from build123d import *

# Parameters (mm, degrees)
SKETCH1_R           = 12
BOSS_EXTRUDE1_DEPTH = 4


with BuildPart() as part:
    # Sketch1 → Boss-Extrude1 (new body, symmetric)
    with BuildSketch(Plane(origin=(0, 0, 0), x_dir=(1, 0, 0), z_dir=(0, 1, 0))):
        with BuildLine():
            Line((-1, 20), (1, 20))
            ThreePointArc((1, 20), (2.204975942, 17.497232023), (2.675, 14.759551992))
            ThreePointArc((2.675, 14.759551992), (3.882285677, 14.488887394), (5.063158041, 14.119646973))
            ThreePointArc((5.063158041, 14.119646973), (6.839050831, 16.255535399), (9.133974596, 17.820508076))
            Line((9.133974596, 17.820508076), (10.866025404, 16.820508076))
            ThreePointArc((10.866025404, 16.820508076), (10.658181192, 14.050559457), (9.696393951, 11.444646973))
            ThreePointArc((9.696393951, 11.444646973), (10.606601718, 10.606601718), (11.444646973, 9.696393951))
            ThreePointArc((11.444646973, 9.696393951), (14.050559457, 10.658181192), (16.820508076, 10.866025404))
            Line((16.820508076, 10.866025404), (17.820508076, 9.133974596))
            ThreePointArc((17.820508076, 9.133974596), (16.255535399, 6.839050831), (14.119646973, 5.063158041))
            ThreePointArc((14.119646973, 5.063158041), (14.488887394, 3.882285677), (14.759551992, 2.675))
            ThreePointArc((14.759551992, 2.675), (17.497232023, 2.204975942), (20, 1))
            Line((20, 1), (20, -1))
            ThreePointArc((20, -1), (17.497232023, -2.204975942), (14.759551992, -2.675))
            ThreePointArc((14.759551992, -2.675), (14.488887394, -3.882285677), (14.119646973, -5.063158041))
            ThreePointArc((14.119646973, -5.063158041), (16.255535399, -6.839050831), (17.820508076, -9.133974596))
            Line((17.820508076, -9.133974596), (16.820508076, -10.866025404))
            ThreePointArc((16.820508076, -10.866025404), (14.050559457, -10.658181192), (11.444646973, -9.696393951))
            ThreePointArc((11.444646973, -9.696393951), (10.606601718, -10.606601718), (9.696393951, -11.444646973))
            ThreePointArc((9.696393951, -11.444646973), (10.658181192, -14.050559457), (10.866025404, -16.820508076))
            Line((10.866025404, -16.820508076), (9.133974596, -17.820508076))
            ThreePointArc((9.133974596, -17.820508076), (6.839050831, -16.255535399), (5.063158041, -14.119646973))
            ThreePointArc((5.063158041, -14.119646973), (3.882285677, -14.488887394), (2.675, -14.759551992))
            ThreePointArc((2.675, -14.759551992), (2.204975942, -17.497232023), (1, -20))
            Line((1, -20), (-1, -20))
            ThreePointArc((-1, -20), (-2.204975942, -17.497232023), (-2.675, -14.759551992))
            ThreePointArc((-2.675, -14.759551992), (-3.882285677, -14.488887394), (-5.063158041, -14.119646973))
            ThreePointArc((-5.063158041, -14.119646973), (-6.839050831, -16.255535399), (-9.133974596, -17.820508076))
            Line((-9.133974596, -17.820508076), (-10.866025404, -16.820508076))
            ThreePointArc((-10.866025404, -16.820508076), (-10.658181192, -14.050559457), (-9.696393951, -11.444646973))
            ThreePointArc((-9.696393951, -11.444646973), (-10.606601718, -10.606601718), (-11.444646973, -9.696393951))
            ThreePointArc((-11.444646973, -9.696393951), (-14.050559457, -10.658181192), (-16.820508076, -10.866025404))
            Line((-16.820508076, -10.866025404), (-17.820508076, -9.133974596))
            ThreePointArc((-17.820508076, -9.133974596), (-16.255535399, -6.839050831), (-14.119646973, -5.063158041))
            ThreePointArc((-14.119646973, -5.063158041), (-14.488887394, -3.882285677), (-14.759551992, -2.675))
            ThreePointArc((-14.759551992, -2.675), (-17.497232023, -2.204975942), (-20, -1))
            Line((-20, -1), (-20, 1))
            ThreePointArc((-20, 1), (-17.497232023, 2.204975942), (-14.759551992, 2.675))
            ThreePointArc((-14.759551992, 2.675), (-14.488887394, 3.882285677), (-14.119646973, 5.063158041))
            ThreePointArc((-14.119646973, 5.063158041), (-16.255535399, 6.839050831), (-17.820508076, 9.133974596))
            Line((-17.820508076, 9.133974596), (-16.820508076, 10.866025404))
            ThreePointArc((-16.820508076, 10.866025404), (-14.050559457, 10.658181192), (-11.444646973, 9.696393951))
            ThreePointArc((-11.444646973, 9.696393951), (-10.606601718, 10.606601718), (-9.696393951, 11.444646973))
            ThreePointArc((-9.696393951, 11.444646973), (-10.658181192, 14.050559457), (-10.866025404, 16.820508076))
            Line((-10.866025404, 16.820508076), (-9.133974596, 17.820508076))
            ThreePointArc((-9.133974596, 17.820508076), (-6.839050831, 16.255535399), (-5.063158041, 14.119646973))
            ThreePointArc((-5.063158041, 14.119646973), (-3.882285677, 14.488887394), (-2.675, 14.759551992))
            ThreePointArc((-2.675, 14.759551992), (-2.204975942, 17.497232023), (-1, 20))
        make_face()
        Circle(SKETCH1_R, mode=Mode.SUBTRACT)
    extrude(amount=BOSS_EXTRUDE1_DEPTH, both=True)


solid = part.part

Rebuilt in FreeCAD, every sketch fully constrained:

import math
import FreeCAD as App
import Part
import Sketcher
Q = App.Units.Quantity

doc = App.newDocument("Part")
body = doc.addObject("PartDesign::Body", "Body")

# Sketch on XZ plane
sketch1 = body.newObject("Sketcher::SketchObject", "Sketch")
sketch1.AttachmentSupport = (doc.getObject("XZ_Plane"), [""])
sketch1.MapMode = "FlatFace"
sketch1.addGeometry([
    Part.LineSegment(App.Vector(1, -20, 0), App.Vector(-1, -20, 0)),  # 0
    Part.ArcOfCircle(Part.Circle(App.Vector(7.32029, -14.452679, 0), App.Vector(0, 0, 1), 10), math.radians(-178.241472), math.radians(-146.307737)),  # 1
    Part.ArcOfCircle(Part.Circle(App.Vector(0, 0, 0), App.Vector(0, 0, 1), 15), math.radians(-109.727304), math.radians(-100.272696)),  # 2
    Part.ArcOfCircle(Part.Circle(App.Vector(-13.565897, -8.856242, 0), App.Vector(0, 0, 1), 10), math.radians(-63.692263), math.radians(-31.758528)),  # 3
    Part.LineSegment(App.Vector(-9.133975, -17.820508, 0), App.Vector(-10.866025, -16.820508, 0)),  # 4
    Part.ArcOfCircle(Part.Circle(App.Vector(-0.886782, -16.176532, 0), App.Vector(0, 0, 1), 10), math.radians(151.758528), math.radians(183.692263)),  # 5
    Part.ArcOfCircle(Part.Circle(App.Vector(0, 0, 0), App.Vector(0, 0, 1), 15), math.radians(-139.727304), math.radians(-130.272696)),  # 6
    Part.ArcOfCircle(Part.Circle(App.Vector(-16.176532, -0.886782, 0), App.Vector(0, 0, 1), 10), math.radians(-93.692263), math.radians(-61.758528)),  # 7
    Part.LineSegment(App.Vector(-16.820508, -10.866025, 0), App.Vector(-17.820508, -9.133975, 0)),  # 8
    Part.ArcOfCircle(Part.Circle(App.Vector(-8.856242, -13.565897, 0), App.Vector(0, 0, 1), 10), math.radians(121.758528), math.radians(153.692263)),  # 9
    Part.ArcOfCircle(Part.Circle(App.Vector(0, 0, 0), App.Vector(0, 0, 1), 15), math.radians(-169.727304), math.radians(-160.272696)),  # 10
    Part.ArcOfCircle(Part.Circle(App.Vector(-14.452679, 7.32029, 0), App.Vector(0, 0, 1), 10), math.radians(-123.692263), math.radians(-91.758528)),  # 11
    Part.LineSegment(App.Vector(-20, -1, 0), App.Vector(-20, 1, 0)),  # 12
    Part.ArcOfCircle(Part.Circle(App.Vector(-14.452679, -7.32029, 0), App.Vector(0, 0, 1), 10), math.radians(91.758528), math.radians(123.692263)),  # 13
    Part.ArcOfCircle(Part.Circle(App.Vector(0, 0, 0), App.Vector(0, 0, 1), 15), math.radians(160.272696), math.radians(169.727304)),  # 14
    Part.ArcOfCircle(Part.Circle(App.Vector(-8.856242, 13.565897, 0), App.Vector(0, 0, 1), 10), math.radians(-153.692263), math.radians(-121.758528)),  # 15
    Part.LineSegment(App.Vector(-17.820508, 9.133975, 0), App.Vector(-16.820508, 10.866025, 0)),  # 16
    Part.ArcOfCircle(Part.Circle(App.Vector(-16.176532, 0.886782, 0), App.Vector(0, 0, 1), 10), math.radians(61.758528), math.radians(93.692263)),  # 17
    Part.ArcOfCircle(Part.Circle(App.Vector(0, 0, 0), App.Vector(0, 0, 1), 15), math.radians(130.272696), math.radians(139.727304)),  # 18
    Part.ArcOfCircle(Part.Circle(App.Vector(-0.886782, 16.176532, 0), App.Vector(0, 0, 1), 10), math.radians(176.307737), math.radians(208.241472)),  # 19
    Part.LineSegment(App.Vector(-10.866025, 16.820508, 0), App.Vector(-9.133975, 17.820508, 0)),  # 20
    Part.ArcOfCircle(Part.Circle(App.Vector(-13.565897, 8.856242, 0), App.Vector(0, 0, 1), 10), math.radians(31.758528), math.radians(63.692263)),  # 21
    Part.ArcOfCircle(Part.Circle(App.Vector(0, 0, 0), App.Vector(0, 0, 1), 15), math.radians(100.272696), math.radians(109.727304)),  # 22
    Part.ArcOfCircle(Part.Circle(App.Vector(7.32029, 14.452679, 0), App.Vector(0, 0, 1), 10), math.radians(146.307737), math.radians(178.241472)),  # 23
    Part.LineSegment(App.Vector(-1, 20, 0), App.Vector(1, 20, 0)),  # 24
    Part.ArcOfCircle(Part.Circle(App.Vector(-7.32029, 14.452679, 0), App.Vector(0, 0, 1), 10), math.radians(1.758528), math.radians(33.692263)),  # 25
    Part.ArcOfCircle(Part.Circle(App.Vector(0, 0, 0), App.Vector(0, 0, 1), 15), math.radians(70.272696), math.radians(79.727304)),  # 26
    Part.ArcOfCircle(Part.Circle(App.Vector(13.565897, 8.856242, 0), App.Vector(0, 0, 1), 10), math.radians(116.307737), math.radians(148.241472)),  # 27
    Part.LineSegment(App.Vector(9.133975, 17.820508, 0), App.Vector(10.866025, 16.820508, 0)),  # 28
    Part.ArcOfCircle(Part.Circle(App.Vector(0.886782, 16.176532, 0), App.Vector(0, 0, 1), 10), math.radians(-28.241472), math.radians(3.692263)),  # 29
    Part.ArcOfCircle(Part.Circle(App.Vector(0, 0, 0), App.Vector(0, 0, 1), 15), math.radians(40.272696), math.radians(49.727304)),  # 30
    Part.ArcOfCircle(Part.Circle(App.Vector(16.176532, 0.886782, 0), App.Vector(0, 0, 1), 10), math.radians(86.307737), math.radians(118.241472)),  # 31
    Part.LineSegment(App.Vector(16.820508, 10.866025, 0), App.Vector(17.820508, 9.133975, 0)),  # 32
    Part.ArcOfCircle(Part.Circle(App.Vector(8.856242, 13.565897, 0), App.Vector(0, 0, 1), 10), math.radians(-58.241472), math.radians(-26.307737)),  # 33
    Part.ArcOfCircle(Part.Circle(App.Vector(0, 0, 0), App.Vector(0, 0, 1), 15), math.radians(10.272696), math.radians(19.727304)),  # 34
    Part.ArcOfCircle(Part.Circle(App.Vector(14.452679, -7.32029, 0), App.Vector(0, 0, 1), 10), math.radians(56.307737), math.radians(88.241472)),  # 35
    Part.LineSegment(App.Vector(20, 1, 0), App.Vector(20, -1, 0)),  # 36
    Part.ArcOfCircle(Part.Circle(App.Vector(14.452679, 7.32029, 0), App.Vector(0, 0, 1), 10), math.radians(-88.241472), math.radians(-56.307737)),  # 37
    Part.ArcOfCircle(Part.Circle(App.Vector(0, 0, 0), App.Vector(0, 0, 1), 15), math.radians(-19.727304), math.radians(-10.272696)),  # 38
    Part.ArcOfCircle(Part.Circle(App.Vector(8.856242, -13.565897, 0), App.Vector(0, 0, 1), 10), math.radians(26.307737), math.radians(58.241472)),  # 39
    Part.LineSegment(App.Vector(17.820508, -9.133975, 0), App.Vector(16.820508, -10.866025, 0)),  # 40
    Part.ArcOfCircle(Part.Circle(App.Vector(16.176532, -0.886782, 0), App.Vector(0, 0, 1), 10), math.radians(-118.241472), math.radians(-86.307737)),  # 41
    Part.ArcOfCircle(Part.Circle(App.Vector(0, 0, 0), App.Vector(0, 0, 1), 15), math.radians(-49.727304), math.radians(-40.272696)),  # 42
    Part.ArcOfCircle(Part.Circle(App.Vector(0.886782, -16.176532, 0), App.Vector(0, 0, 1), 10), math.radians(-3.692263), math.radians(28.241472)),  # 43
    Part.LineSegment(App.Vector(10.866025, -16.820508, 0), App.Vector(9.133975, -17.820508, 0)),  # 44
    Part.ArcOfCircle(Part.Circle(App.Vector(13.565897, -8.856242, 0), App.Vector(0, 0, 1), 10), math.radians(-148.241472), math.radians(-116.307737)),  # 45
    Part.ArcOfCircle(Part.Circle(App.Vector(0, 0, 0), App.Vector(0, 0, 1), 15), math.radians(-79.727304), math.radians(-70.272696)),  # 46
    Part.ArcOfCircle(Part.Circle(App.Vector(-7.32029, -14.452679, 0), App.Vector(0, 0, 1), 10), math.radians(-33.692263), math.radians(-1.758528)),  # 47
    Part.Circle(App.Vector(0, 0, 0), App.Vector(0, 0, 1), 12),  # 48
], False)
sketch1.addConstraint([
    Sketcher.Constraint("Coincident", 0, 2, 1, 2),
    Sketcher.Constraint("Coincident", 1, 1, 2, 2),
    Sketcher.Constraint("Coincident", 2, 1, 3, 2),
    Sketcher.Constraint("Coincident", 3, 1, 4, 1),
    Sketcher.Constraint("Coincident", 4, 2, 5, 2),
    Sketcher.Constraint("Coincident", 5, 1, 6, 2),
    Sketcher.Constraint("Coincident", 6, 1, 7, 2),
    Sketcher.Constraint("Coincident", 7, 1, 8, 1),
    Sketcher.Constraint("Coincident", 8, 2, 9, 2),
    Sketcher.Constraint("Coincident", 9, 1, 10, 2),
    Sketcher.Constraint("Coincident", 10, 1, 11, 2),
    Sketcher.Constraint("Coincident", 11, 1, 12, 1),
    Sketcher.Constraint("Coincident", 12, 2, 13, 2),
    Sketcher.Constraint("Coincident", 13, 1, 14, 2),
    Sketcher.Constraint("Coincident", 14, 1, 15, 2),
    Sketcher.Constraint("Coincident", 15, 1, 16, 1),
    Sketcher.Constraint("Coincident", 16, 2, 17, 2),
    Sketcher.Constraint("Coincident", 17, 1, 18, 2),
    Sketcher.Constraint("Coincident", 18, 1, 19, 2),
    Sketcher.Constraint("Coincident", 19, 1, 20, 1),
    Sketcher.Constraint("Coincident", 20, 2, 21, 2),
    Sketcher.Constraint("Coincident", 21, 1, 22, 2),
    Sketcher.Constraint("Coincident", 22, 1, 23, 2),
    Sketcher.Constraint("Coincident", 23, 1, 24, 1),
    Sketcher.Constraint("Coincident", 24, 2, 25, 2),
    Sketcher.Constraint("Coincident", 25, 1, 26, 2),
    Sketcher.Constraint("Coincident", 26, 1, 27, 2),
    Sketcher.Constraint("Coincident", 27, 1, 28, 1),
    Sketcher.Constraint("Coincident", 28, 2, 29, 2),
    Sketcher.Constraint("Coincident", 29, 1, 30, 2),
    Sketcher.Constraint("Coincident", 30, 1, 31, 2),
    Sketcher.Constraint("Coincident", 31, 1, 32, 1),
    Sketcher.Constraint("Coincident", 32, 2, 33, 2),
    Sketcher.Constraint("Coincident", 33, 1, 34, 2),
    Sketcher.Constraint("Coincident", 34, 1, 35, 2),
    Sketcher.Constraint("Coincident", 35, 1, 36, 1),
    Sketcher.Constraint("Coincident", 36, 2, 37, 2),
    Sketcher.Constraint("Coincident", 37, 1, 38, 2),
    Sketcher.Constraint("Coincident", 38, 1, 39, 2),
    Sketcher.Constraint("Coincident", 39, 1, 40, 1),
    Sketcher.Constraint("Coincident", 40, 2, 41, 2),
    Sketcher.Constraint("Coincident", 41, 1, 42, 2),
    Sketcher.Constraint("Coincident", 42, 1, 43, 2),
    Sketcher.Constraint("Coincident", 43, 1, 44, 1),
    Sketcher.Constraint("Coincident", 44, 2, 45, 2),
    Sketcher.Constraint("Coincident", 45, 1, 46, 2),
    Sketcher.Constraint("Coincident", 46, 1, 47, 2),
    Sketcher.Constraint("Coincident", 47, 1, 0, 1),
    Sketcher.Constraint("Horizontal", 0),
    Sketcher.Constraint("Vertical", 12),
    Sketcher.Constraint("Horizontal", 24),
    Sketcher.Constraint("Vertical", 36),
    Sketcher.Constraint("Coincident", 2, 3, -1, 1),
    Sketcher.Constraint("Coincident", 6, 3, -1, 1),
    Sketcher.Constraint("Coincident", 10, 3, -1, 1),
    Sketcher.Constraint("Coincident", 14, 3, -1, 1),
    Sketcher.Constraint("Coincident", 18, 3, -1, 1),
    Sketcher.Constraint("Coincident", 22, 3, -1, 1),
    Sketcher.Constraint("Coincident", 26, 3, -1, 1),
    Sketcher.Constraint("Coincident", 30, 3, -1, 1),
    Sketcher.Constraint("Coincident", 34, 3, -1, 1),
    Sketcher.Constraint("Coincident", 38, 3, -1, 1),
    Sketcher.Constraint("Coincident", 42, 3, -1, 1),
    Sketcher.Constraint("Coincident", 46, 3, -1, 1),
    Sketcher.Constraint("Coincident", 48, 3, -1, 1),
    Sketcher.Constraint("Equal", 1, 3),
    Sketcher.Constraint("Equal", 3, 5),
    Sketcher.Constraint("Equal", 2, 6),
    Sketcher.Constraint("Equal", 5, 7),
    Sketcher.Constraint("Equal", 7, 9),
    Sketcher.Constraint("Equal", 6, 10),
    Sketcher.Constraint("Equal", 9, 11),
    Sketcher.Constraint("Equal", 11, 13),
    Sketcher.Constraint("Equal", 10, 14),
    Sketcher.Constraint("Equal", 13, 15),
    Sketcher.Constraint("Equal", 15, 17),
    Sketcher.Constraint("Equal", 14, 18),
    Sketcher.Constraint("Equal", 17, 19),
    Sketcher.Constraint("Equal", 19, 21),
    Sketcher.Constraint("Equal", 18, 22),
    Sketcher.Constraint("Equal", 21, 23),
    Sketcher.Constraint("Equal", 23, 25),
    Sketcher.Constraint("Equal", 22, 26),
    Sketcher.Constraint("Equal", 25, 27),
    Sketcher.Constraint("Equal", 27, 29),
    Sketcher.Constraint("Equal", 26, 30),
    Sketcher.Constraint("Equal", 29, 31),
    Sketcher.Constraint("Equal", 31, 33),
    Sketcher.Constraint("Equal", 30, 34),
    Sketcher.Constraint("Equal", 33, 35),
    Sketcher.Constraint("Equal", 35, 37),
    Sketcher.Constraint("Equal", 34, 38),
    Sketcher.Constraint("Equal", 37, 39),
    Sketcher.Constraint("Equal", 39, 41),
    Sketcher.Constraint("Equal", 38, 42),
    Sketcher.Constraint("Equal", 41, 43),
    Sketcher.Constraint("Equal", 43, 45),
    Sketcher.Constraint("Equal", 42, 46),
    Sketcher.Constraint("Equal", 45, 47),
    Sketcher.Constraint("Symmetric", 1, 3, 25, 3, -1, 1),
    Sketcher.Constraint("Symmetric", 3, 3, 27, 3, -1, 1),
    Sketcher.Constraint("Symmetric", 5, 3, 29, 3, -1, 1),
    Sketcher.Constraint("Symmetric", 7, 3, 31, 3, -1, 1),
    Sketcher.Constraint("Symmetric", 9, 3, 33, 3, -1, 1),
    Sketcher.Constraint("Symmetric", 11, 3, 35, 3, -1, 1),
    Sketcher.Constraint("Symmetric", 13, 3, 37, 3, -1, 1),
    Sketcher.Constraint("Symmetric", 15, 3, 39, 3, -1, 1),
    Sketcher.Constraint("Symmetric", 17, 3, 41, 3, -1, 1),
    Sketcher.Constraint("Symmetric", 19, 3, 43, 3, -1, 1),
    Sketcher.Constraint("Symmetric", 21, 3, 45, 3, -1, 1),
    Sketcher.Constraint("Symmetric", 23, 3, 47, 3, -1, 1),
    Sketcher.Constraint("Symmetric", 23, 3, 25, 3, -2),
    Sketcher.Constraint("Symmetric", 21, 3, 27, 3, -2),
    Sketcher.Constraint("Symmetric", 19, 3, 29, 3, -2),
    Sketcher.Constraint("Symmetric", 17, 3, 31, 3, -2),
    Sketcher.Constraint("Symmetric", 15, 3, 33, 3, -2),
    Sketcher.Constraint("Symmetric", 13, 3, 35, 3, -2),
    Sketcher.Constraint("Perpendicular", 4, 16),
    Sketcher.Constraint("Perpendicular", 8, 20),
    Sketcher.Constraint("Perpendicular", 16, 28),
    Sketcher.Constraint("Perpendicular", 20, 32),
    Sketcher.Constraint("Perpendicular", 28, 40),
    Sketcher.Constraint("Perpendicular", 32, 44),
    Sketcher.Constraint("Horizontal", 20, 2, 27, 1),
    Sketcher.Constraint("Horizontal", 19, 1, 28, 2),
    Sketcher.Constraint("Horizontal", 16, 2, 31, 1),
    Sketcher.Constraint("Horizontal", 12, 2, 35, 1),
    Sketcher.Constraint("Horizontal", 8, 2, 39, 1),
    Sketcher.Constraint("Horizontal", 4, 2, 43, 1),
    Sketcher.Constraint("Vertical", 8, 2, 15, 1),
    Sketcher.Constraint("Vertical", 4, 2, 19, 1),
    Sketcher.Constraint("Vertical", 0, 2, 23, 1),
    Sketcher.Constraint("Equal", 24, 12),
    Sketcher.Constraint("Equal", 4, 8),
    Sketcher.Constraint("Diameter", 48, 24.0),
    Sketcher.Constraint("Radius", 1, 10.0),
    Sketcher.Constraint("Radius", 2, 15.0),
    Sketcher.Constraint("DistanceX", 0, 2, 0, 1, 2.0),
    Sketcher.Constraint("Angle", 4, Q("150 deg")),
    Sketcher.Constraint("Distance", 4, 2.0),
    Sketcher.Constraint("DistanceY", 0, 2, -1, 1, 20.0),
    Sketcher.Constraint("DistanceX", 11, 1, -1, 1, 20.0),
    Sketcher.Constraint("DistanceX", 1, 1, -1, 1, 2.675),
    Sketcher.Constraint("DistanceY", 10, 1, -1, 1, 2.675),
    Sketcher.Constraint("DistanceX", 2, 1, -1, 1, 5.063158),
    Sketcher.Constraint("DistanceY", 3, 1, -1, 1, 17.820508),
    Sketcher.Constraint("DistanceX", 7, 1, -1, 1, 16.820508),
    Sketcher.Constraint("DistanceY", 9, 1, -1, 1, 5.063158),
    Sketcher.Constraint("DistanceX", 3, 3, -1, 1, 13.565897),
    Sketcher.Constraint("DistanceX", 5, 3, -1, 1, 0.886782),
    Sketcher.Constraint("DistanceX", 7, 3, -1, 1, 16.176532),
    Sketcher.Constraint("DistanceY", 7, 3, -1, 1, 0.886782),
])
pad1 = body.newObject("PartDesign::Pad", "Pad")
pad1.Profile = sketch1
pad1.Length = 8
pad1.Midplane = True

doc.recompute()
